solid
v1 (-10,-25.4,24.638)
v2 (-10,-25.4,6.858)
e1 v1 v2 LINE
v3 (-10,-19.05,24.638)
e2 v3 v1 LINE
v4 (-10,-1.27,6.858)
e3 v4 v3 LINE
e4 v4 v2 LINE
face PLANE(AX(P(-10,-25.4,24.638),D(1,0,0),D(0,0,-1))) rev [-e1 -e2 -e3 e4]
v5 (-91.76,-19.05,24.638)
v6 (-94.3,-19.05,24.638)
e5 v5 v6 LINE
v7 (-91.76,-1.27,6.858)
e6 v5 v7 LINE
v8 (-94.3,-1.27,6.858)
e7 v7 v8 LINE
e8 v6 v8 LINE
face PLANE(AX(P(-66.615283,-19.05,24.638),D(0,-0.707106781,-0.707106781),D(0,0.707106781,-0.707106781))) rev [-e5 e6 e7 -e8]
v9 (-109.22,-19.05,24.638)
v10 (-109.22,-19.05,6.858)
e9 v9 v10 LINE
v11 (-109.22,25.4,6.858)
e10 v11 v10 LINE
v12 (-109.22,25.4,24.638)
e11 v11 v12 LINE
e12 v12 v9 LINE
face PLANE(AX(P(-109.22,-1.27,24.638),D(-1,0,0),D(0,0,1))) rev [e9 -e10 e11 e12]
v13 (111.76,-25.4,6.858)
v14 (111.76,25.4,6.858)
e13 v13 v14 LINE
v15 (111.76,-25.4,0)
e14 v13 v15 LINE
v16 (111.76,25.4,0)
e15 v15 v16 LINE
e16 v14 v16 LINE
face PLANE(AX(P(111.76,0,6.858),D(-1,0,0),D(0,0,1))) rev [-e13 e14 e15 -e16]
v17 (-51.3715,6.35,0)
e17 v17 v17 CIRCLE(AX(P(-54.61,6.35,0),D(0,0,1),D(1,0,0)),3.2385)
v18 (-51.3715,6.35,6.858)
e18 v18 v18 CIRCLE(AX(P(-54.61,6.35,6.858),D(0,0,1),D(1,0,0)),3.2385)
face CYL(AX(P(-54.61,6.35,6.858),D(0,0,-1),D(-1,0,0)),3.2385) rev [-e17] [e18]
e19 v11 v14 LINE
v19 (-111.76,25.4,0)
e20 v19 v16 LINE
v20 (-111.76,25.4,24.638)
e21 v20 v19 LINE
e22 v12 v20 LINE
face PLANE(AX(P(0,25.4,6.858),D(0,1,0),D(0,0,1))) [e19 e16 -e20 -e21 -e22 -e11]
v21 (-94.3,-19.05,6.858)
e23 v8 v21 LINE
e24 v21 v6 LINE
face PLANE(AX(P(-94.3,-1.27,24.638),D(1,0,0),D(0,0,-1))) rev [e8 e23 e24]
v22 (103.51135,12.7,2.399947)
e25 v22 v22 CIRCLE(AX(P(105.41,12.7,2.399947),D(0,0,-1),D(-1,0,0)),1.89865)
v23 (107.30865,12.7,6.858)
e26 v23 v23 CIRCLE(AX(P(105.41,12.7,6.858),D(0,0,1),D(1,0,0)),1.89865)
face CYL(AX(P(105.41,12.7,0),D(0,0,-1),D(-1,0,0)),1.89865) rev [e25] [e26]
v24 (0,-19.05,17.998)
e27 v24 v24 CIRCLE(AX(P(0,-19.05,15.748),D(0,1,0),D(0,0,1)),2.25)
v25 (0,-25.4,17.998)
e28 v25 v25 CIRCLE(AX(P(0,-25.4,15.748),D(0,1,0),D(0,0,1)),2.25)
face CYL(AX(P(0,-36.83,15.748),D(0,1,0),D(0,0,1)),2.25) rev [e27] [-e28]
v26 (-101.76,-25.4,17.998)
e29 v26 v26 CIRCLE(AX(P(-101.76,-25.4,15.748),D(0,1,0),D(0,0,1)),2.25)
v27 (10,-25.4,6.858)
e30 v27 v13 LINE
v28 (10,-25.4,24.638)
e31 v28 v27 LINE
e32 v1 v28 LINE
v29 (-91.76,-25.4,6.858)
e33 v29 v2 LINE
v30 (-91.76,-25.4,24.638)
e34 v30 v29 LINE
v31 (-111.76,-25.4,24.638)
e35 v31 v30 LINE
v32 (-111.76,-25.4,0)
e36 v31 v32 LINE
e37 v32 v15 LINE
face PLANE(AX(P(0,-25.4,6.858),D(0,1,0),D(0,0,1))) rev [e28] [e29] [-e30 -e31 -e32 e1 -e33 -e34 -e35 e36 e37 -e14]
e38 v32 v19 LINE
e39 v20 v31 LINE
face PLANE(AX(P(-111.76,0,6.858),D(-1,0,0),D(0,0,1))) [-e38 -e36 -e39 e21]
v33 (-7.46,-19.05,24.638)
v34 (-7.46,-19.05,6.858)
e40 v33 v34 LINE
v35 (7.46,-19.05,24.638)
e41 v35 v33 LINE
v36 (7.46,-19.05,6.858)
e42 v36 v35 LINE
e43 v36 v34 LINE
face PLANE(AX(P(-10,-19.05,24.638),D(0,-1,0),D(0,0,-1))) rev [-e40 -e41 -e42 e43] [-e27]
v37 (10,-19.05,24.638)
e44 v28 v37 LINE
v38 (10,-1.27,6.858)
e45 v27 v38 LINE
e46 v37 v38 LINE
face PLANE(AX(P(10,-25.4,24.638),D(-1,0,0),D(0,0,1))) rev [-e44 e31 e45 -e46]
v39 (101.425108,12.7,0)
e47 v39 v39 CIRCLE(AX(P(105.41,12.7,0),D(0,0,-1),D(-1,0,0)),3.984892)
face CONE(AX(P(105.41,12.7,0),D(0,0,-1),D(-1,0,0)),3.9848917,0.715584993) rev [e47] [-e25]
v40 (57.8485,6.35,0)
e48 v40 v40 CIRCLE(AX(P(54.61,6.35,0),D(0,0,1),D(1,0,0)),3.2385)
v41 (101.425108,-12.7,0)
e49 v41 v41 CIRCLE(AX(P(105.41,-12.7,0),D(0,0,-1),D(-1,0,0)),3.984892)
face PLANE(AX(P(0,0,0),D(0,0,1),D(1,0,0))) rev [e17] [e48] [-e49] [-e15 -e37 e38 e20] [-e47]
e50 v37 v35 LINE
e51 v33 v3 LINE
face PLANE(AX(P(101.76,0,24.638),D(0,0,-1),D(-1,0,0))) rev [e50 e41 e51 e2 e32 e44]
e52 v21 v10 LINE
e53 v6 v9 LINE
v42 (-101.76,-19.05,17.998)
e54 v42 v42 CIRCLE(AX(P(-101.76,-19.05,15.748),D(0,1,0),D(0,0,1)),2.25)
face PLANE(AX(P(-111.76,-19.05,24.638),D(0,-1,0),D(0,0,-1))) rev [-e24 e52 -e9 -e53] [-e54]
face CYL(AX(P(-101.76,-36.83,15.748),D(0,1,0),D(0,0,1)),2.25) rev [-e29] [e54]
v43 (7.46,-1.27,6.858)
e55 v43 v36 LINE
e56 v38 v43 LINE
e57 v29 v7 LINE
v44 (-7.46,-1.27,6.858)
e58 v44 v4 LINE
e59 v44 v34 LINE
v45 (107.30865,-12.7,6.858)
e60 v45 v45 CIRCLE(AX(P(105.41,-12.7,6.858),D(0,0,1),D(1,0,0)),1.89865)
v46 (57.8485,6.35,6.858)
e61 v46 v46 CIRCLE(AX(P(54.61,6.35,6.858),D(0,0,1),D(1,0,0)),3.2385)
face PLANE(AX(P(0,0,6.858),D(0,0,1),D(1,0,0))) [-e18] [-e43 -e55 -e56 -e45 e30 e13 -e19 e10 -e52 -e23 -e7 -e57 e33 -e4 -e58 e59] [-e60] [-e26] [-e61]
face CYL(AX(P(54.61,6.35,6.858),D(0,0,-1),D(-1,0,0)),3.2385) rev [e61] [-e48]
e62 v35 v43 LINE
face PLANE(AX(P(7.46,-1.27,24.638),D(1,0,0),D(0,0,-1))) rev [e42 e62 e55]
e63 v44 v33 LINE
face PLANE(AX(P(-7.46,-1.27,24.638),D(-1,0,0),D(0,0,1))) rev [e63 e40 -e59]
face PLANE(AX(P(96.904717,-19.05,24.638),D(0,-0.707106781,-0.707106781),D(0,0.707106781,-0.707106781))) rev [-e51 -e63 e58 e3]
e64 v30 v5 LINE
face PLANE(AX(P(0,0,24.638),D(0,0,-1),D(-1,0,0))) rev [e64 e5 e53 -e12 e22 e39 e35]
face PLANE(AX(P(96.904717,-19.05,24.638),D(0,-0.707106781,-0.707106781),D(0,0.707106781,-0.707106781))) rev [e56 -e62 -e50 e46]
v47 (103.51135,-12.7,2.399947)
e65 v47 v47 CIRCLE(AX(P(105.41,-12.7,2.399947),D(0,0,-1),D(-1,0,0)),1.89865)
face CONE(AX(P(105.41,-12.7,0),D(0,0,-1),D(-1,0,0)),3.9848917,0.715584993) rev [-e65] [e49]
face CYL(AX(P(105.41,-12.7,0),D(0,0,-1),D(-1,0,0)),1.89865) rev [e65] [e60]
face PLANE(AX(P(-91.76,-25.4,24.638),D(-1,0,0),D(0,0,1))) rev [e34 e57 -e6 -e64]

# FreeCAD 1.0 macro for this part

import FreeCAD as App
import Part
import Sketcher
Q = App.Units.Quantity

doc = App.newDocument("Part")
body = doc.addObject("PartDesign::Body", "Body")

sketch1 = body.newObject("Sketcher::SketchObject", "Sketch")
sketch1.AttachmentSupport = (doc.getObject("XY_Plane"), [""])
sketch1.MapMode = "FlatFace"
sketch1.addGeometry(Part.LineSegment(App.Vector(-111.76, 25.4, 0), App.Vector(-111.76, -25.4, 0)), False)
sketch1.addGeometry(Part.LineSegment(App.Vector(-111.76, -25.4, 0), App.Vector(111.76, -25.4, 0)), False)
sketch1.addGeometry(Part.LineSegment(App.Vector(111.76, -25.4, 0), App.Vector(111.76, 25.4, 0)), False)
sketch1.addGeometry(Part.LineSegment(App.Vector(111.76, 25.4, 0), App.Vector(-111.76, 25.4, 0)), False)
sketch1.addGeometry(Part.Circle(App.Vector(-54.61, 6.35, 0), App.Vector(0, 0, 1), 3.2385), False)
sketch1.addGeometry(Part.Circle(App.Vector(54.61, 6.35, 0), App.Vector(0, 0, 1), 3.2385), False)
sketch1.addConstraint(Sketcher.Constraint("Coincident", 0, 2, 1, 1))
sketch1.addConstraint(Sketcher.Constraint("Coincident", 1, 2, 2, 1))
sketch1.addConstraint(Sketcher.Constraint("Coincident", 2, 2, 3, 1))
sketch1.addConstraint(Sketcher.Constraint("Coincident", 3, 2, 0, 1))
sketch1.addConstraint(Sketcher.Constraint("Vertical", 0))
sketch1.addConstraint(Sketcher.Constraint("Horizontal", 1))
sketch1.addConstraint(Sketcher.Constraint("Vertical", 2))
sketch1.addConstraint(Sketcher.Constraint("Horizontal", 3))
sketch1.addConstraint(Sketcher.Constraint("Equal", 4, 5))
sketch1.addConstraint(Sketcher.Constraint("Symmetric", 0, 2, 2, 2, -1, 1))
sketch1.addConstraint(Sketcher.Constraint("Symmetric", 4, 3, 5, 3, -2))
sketch1.addConstraint(Sketcher.Constraint("DistanceY", 0, 2, 0, 1, Q("2 in")))
sketch1.addConstraint(Sketcher.Constraint("Diameter", 4, Q("0.255 in")))
sketch1.addConstraint(Sketcher.Constraint("DistanceX", 1, 1, 1, 2, Q("8.8 in")))
sketch1.addConstraint(Sketcher.Constraint("DistanceX", 4, 3, 5, 3, Q("4.3 in")))
sketch1.addConstraint(Sketcher.Constraint("DistanceY", -1, 1, 4, 3, Q("0.25 in")))
pad1 = body.newObject("PartDesign::Pad", "Pad")
pad1.Profile = sketch1
pad1.Length = Q("0.27 in")

sketch2 = body.newObject("Sketcher::SketchObject", "Sketch001")
sketch2.AttachmentSupport = (doc.getObject("XY_Plane"), [""])
sketch2.MapMode = "FlatFace"
sketch2.AttachmentOffset = App.Placement(App.Vector(0, 0, 0.27 * 25.4), App.Rotation())
sketch2.addGeometry(Part.LineSegment(App.Vector(-111.76, -19.05, 0), App.Vector(-111.76, -25.4, 0)), False)
sketch2.addGeometry(Part.LineSegment(App.Vector(-111.76, -25.4, 0), App.Vector(-91.76, -25.4, 0)), False)
sketch2.addGeometry(Part.LineSegment(App.Vector(-91.76, -25.4, 0), App.Vector(-91.76, -19.05, 0)), False)
sketch2.addGeometry(Part.LineSegment(App.Vector(-91.76, -19.05, 0), App.Vector(-111.76, -19.05, 0)), False)
sketch2.addConstraint(Sketcher.Constraint("Coincident", 0, 2, 1, 1))
sketch2.addConstraint(Sketcher.Constraint("Coincident", 1, 2, 2, 1))
sketch2.addConstraint(Sketcher.Constraint("Coincident", 2, 2, 3, 1))
sketch2.addConstraint(Sketcher.Constraint("Coincident", 3, 2, 0, 1))
sketch2.addConstraint(Sketcher.Constraint("Vertical", 0))
sketch2.addConstraint(Sketcher.Constraint("Horizontal", 1))
sketch2.addConstraint(Sketcher.Constraint("Vertical", 2))
sketch2.addConstraint(Sketcher.Constraint("Horizontal", 3))
sketch2.addConstraint(Sketcher.Constraint("DistanceY", 0, 2, -1, 1, Q("1 in")))
sketch2.addConstraint(Sketcher.Constraint("DistanceY", 0, 2, 0, 1, Q("0.25 in")))
sketch2.addConstraint(Sketcher.Constraint("DistanceX", 0, 2, -1, 1, Q("4.4 in")))
sketch2.addConstraint(Sketcher.Constraint("DistanceX", 1, 1, 1, 2, 20.0))
pad2 = body.newObject("PartDesign::Pad", "Pad001")
pad2.Profile = sketch2
pad2.Length = Q("0.7 in")

sketch3 = body.newObject("Sketcher::SketchObject", "Sketch002")
sketch3.AttachmentSupport = (doc.getObject("XZ_Plane"), [""])
sketch3.MapMode = "FlatFace"
sketch3.AttachmentOffset = App.Placement(App.Vector(0, 0, 0.75 * 25.4), App.Rotation())
sketch3.addGeometry(Part.Circle(App.Vector(-101.76, 15.748, 0), App.Vector(0, 0, 1), 2.25), False)
sketch3.addConstraint(Sketcher.Constraint("Diameter", 0, 4.5))
sketch3.addConstraint(Sketcher.Constraint("DistanceY", -1, 1, 0, 3, Q("0.62 in")))
sketch3.addConstraint(Sketcher.Constraint("DistanceX", 0, 3, -1, 1, 101.76))
pocket1 = body.newObject("PartDesign::Pocket", "Pocket")
pocket1.Profile = sketch3
pocket1.Length = Q("0.7 in")
pocket1.Reversed = True

sketch4 = body.newObject("Sketcher::SketchObject", "Sketch003")
sketch4.AttachmentSupport = (doc.getObject("XZ_Plane"), [""])
sketch4.MapMode = "FlatFace"
sketch4.AttachmentOffset = App.Placement(App.Vector(0, 0, 0.75 * 25.4), App.Rotation())
sketch4.addGeometry(Part.LineSegment(App.Vector(-111.76, 6.858, 0), App.Vector(-111.76, 24.638, 0)), False)
sketch4.addGeometry(Part.LineSegment(App.Vector(-111.76, 24.638, 0), App.Vector(-109.22, 24.638, 0)), False)
sketch4.addGeometry(Part.LineSegment(App.Vector(-109.22, 24.638, 0), App.Vector(-109.22, 6.858, 0)), False)
sketch4.addGeometry(Part.LineSegment(App.Vector(-109.22, 6.858, 0), App.Vector(-111.76, 6.858, 0)), False)
sketch4.addGeometry(Part.LineSegment(App.Vector(-94.3, 6.858, 0), App.Vector(-94.3, 24.638, 0)), False)
sketch4.addGeometry(Part.LineSegment(App.Vector(-94.3, 24.638, 0), App.Vector(-91.76, 24.638, 0)), False)
sketch4.addGeometry(Part.LineSegment(App.Vector(-91.76, 24.638, 0), App.Vector(-91.76, 6.858, 0)), False)
sketch4.addGeometry(Part.LineSegment(App.Vector(-91.76, 6.858, 0), App.Vector(-94.3, 6.858, 0)), False)
sketch4.addConstraint(Sketcher.Constraint("Coincident", 0, 2, 1, 1))
sketch4.addConstraint(Sketcher.Constraint("Coincident", 1, 2, 2, 1))
sketch4.addConstraint(Sketcher.Constraint("Coincident", 2, 2, 3, 1))
sketch4.addConstraint(Sketcher.Constraint("Coincident", 3, 2, 0, 1))
sketch4.addConstraint(Sketcher.Constraint("Coincident", 4, 2, 5, 1))
sketch4.addConstraint(Sketcher.Constraint("Coincident", 5, 2, 6, 1))
sketch4.addConstraint(Sketcher.Constraint("Coincident", 6, 2, 7, 1))
sketch4.addConstraint(Sketcher.Constraint("Coincident", 7, 2, 4, 1))
sketch4.addConstraint(Sketcher.Constraint("Vertical", 0))
sketch4.addConstraint(Sketcher.Constraint("Horizontal", 1))
sketch4.addConstraint(Sketcher.Constraint("Vertical", 2))
sketch4.addConstraint(Sketcher.Constraint("Horizontal", 3))
sketch4.addConstraint(Sketcher.Constraint("Vertical", 4))
sketch4.addConstraint(Sketcher.Constraint("Horizontal", 5))
sketch4.addConstraint(Sketcher.Constraint("Vertical", 6))
sketch4.addConstraint(Sketcher.Constraint("Horizontal", 7))
sketch4.addConstraint(Sketcher.Constraint("Horizontal", 1, 2, 4, 2))
sketch4.addConstraint(Sketcher.Constraint("Horizontal", 3, 2, 6, 2))
sketch4.addConstraint(Sketcher.Constraint("Equal", 3, 5))
sketch4.addConstraint(Sketcher.Constraint("DistanceX", 1, 1, 1, 2, Q("0.1 in")))
sketch4.addConstraint(Sketcher.Constraint("DistanceY", 0, 1, 0, 2, Q("0.7 in")))
sketch4.addConstraint(Sketcher.Constraint("DistanceX", 0, 2, -1, 1, Q("4.4 in")))
sketch4.addConstraint(Sketcher.Constraint("DistanceY", -1, 1, 0, 2, Q("0.97 in")))
sketch4.addConstraint(Sketcher.Constraint("DistanceX", 4, 2, -1, 1, 94.3))
pad3 = body.newObject("PartDesign::Pad", "Pad002")
pad3.Profile = sketch4
pad3.Length = Q("0.7 in")
pad3.Reversed = True

sketch5 = body.newObject("Sketcher::SketchObject", "Sketch004")
sketch5.AttachmentSupport = (doc.getObject("YZ_Plane"), [""])
sketch5.MapMode = "FlatFace"
sketch5.AttachmentOffset = App.Placement(App.Vector(0, 0, -4.4 * 25.4), App.Rotation())
sketch5.addGeometry(Part.LineSegment(App.Vector(-1.27, 24.638, 0), App.Vector(-1.27, 6.858, 0)), False)
sketch5.addGeometry(Part.LineSegment(App.Vector(-1.27, 6.858, 0), App.Vector(-19.05, 24.638, 0)), False)
sketch5.addGeometry(Part.LineSegment(App.Vector(-19.05, 24.638, 0), App.Vector(-1.27, 24.638, 0)), False)
sketch5.addConstraint(Sketcher.Constraint("Coincident", 0, 2, 1, 1))
sketch5.addConstraint(Sketcher.Constraint("Coincident", 1, 2, 2, 1))
sketch5.addConstraint(Sketcher.Constraint("Coincident", 2, 2, 0, 1))
sketch5.addConstraint(Sketcher.Constraint("Vertical", 0))
sketch5.addConstraint(Sketcher.Constraint("Horizontal", 2))
sketch5.addConstraint(Sketcher.Constraint("Equal", 2, 0))
sketch5.addConstraint(Sketcher.Constraint("DistanceX", 2, 1, 2, 2, Q("0.7 in")))
sketch5.addConstraint(Sketcher.Constraint("DistanceX", 0, 2, -1, 1, Q("0.05 in")))
sketch5.addConstraint(Sketcher.Constraint("DistanceY", -1, 1, 0, 2, Q("0.27 in")))
pocket2 = body.newObject("PartDesign::Pocket", "Pocket001")
pocket2.Profile = sketch5
pocket2.Length = 20
pocket2.Reversed = True
doc.recompute()

linearpattern = body.newObject("PartDesign::LinearPattern", "LinearPattern")
linearpattern.Originals = [pad2, pocket1, pad3, pocket2]
linearpattern.Direction = (doc.getObject("X_Axis"), [""])
linearpattern.Mode = "offset"
linearpattern.Offset = 101.76
linearpattern.Occurrences = 2
body.Tip = linearpattern

sketch6 = body.newObject("Sketcher::SketchObject", "Sketch005")
sketch6.AttachmentSupport = (doc.getObject("YZ_Plane"), [""])
sketch6.MapMode = "FlatFace"
sketch6.AttachmentOffset = App.Placement(App.Vector(0, 0, -4.4 * 25.4), App.Rotation())
sketch6.addGeometry(Part.LineSegment(App.Vector(-19.05, 24.638, 0), App.Vector(25.4, 24.638, 0)), False)
sketch6.addGeometry(Part.LineSegment(App.Vector(25.4, 24.638, 0), App.Vector(25.4, 6.858, 0)), False)
sketch6.addGeometry(Part.LineSegment(App.Vector(25.4, 6.858, 0), App.Vector(-1.27, 6.858, 0)), False)
sketch6.addGeometry(Part.LineSegment(App.Vector(-1.27, 6.858, 0), App.Vector(-19.05, 24.638, 0)), False)
sketch6.addConstraint(Sketcher.Constraint("Coincident", 0, 2, 1, 1))
sketch6.addConstraint(Sketcher.Constraint("Coincident", 1, 2, 2, 1))
sketch6.addConstraint(Sketcher.Constraint("Coincident", 2, 2, 3, 1))
sketch6.addConstraint(Sketcher.Constraint("Coincident", 3, 2, 0, 1))
sketch6.addConstraint(Sketcher.Constraint("Horizontal", 0))
sketch6.addConstraint(Sketcher.Constraint("Vertical", 1))
sketch6.addConstraint(Sketcher.Constraint("Horizontal", 2))
sketch6.addConstraint(Sketcher.Constraint("DistanceY", 1, 2, 1, 1, Q("0.7 in")))
sketch6.addConstraint(Sketcher.Constraint("DistanceX", -1, 1, 0, 2, Q("1 in")))
sketch6.addConstraint(Sketcher.Constraint("Angle", 3, Q("135 deg")))
sketch6.addConstraint(Sketcher.Constraint("DistanceX", 0, 1, 0, 2, Q("1.75 in")))
sketch6.addConstraint(Sketcher.Constraint("DistanceY", -1, 1, 0, 2, Q("0.97 in")))
pad4 = body.newObject("PartDesign::Pad", "Pad003")
pad4.Profile = sketch6
pad4.Length = Q("0.1 in")

sketch7 = body.newObject("Sketcher::SketchObject", "Sketch006")
sketch7.AttachmentSupport = (doc.getObject("XY_Plane"), [""])
sketch7.MapMode = "FlatFace"
sketch7.addGeometry(Part.Circle(App.Vector(105.41, 12.7, 0), App.Vector(0, 0, 1), 1.89865), False)
sketch7.addGeometry(Part.Circle(App.Vector(105.41, -12.7, 0), App.Vector(0, 0, 1), 1.89865), False)
sketch7.addConstraint(Sketcher.Constraint("Equal", 0, 1))
sketch7.addConstraint(Sketcher.Constraint("Symmetric", 0, 3, 1, 3, -1))
sketch7.addConstraint(Sketcher.Constraint("DistanceY", 1, 3, 0, 3, Q("1 in")))
sketch7.addConstraint(Sketcher.Constraint("Diameter", 0, Q("0.1495 in")))
sketch7.addConstraint(Sketcher.Constraint("DistanceX", -1, 1, 0, 3, Q("4.15 in")))
doc.recompute()
hole = body.newObject("PartDesign::Hole", "Hole")
hole.Profile = sketch7
hole.ThreadType = "None"
hole.Diameter = Q("0.1495 in")
hole.DepthType = "ThroughAll"
hole.HoleCutType = "Countersink"
hole.HoleCutDiameter = 7.969783
hole.HoleCutCountersinkAngle = 82
hole.Reversed = True

doc.recompute()
